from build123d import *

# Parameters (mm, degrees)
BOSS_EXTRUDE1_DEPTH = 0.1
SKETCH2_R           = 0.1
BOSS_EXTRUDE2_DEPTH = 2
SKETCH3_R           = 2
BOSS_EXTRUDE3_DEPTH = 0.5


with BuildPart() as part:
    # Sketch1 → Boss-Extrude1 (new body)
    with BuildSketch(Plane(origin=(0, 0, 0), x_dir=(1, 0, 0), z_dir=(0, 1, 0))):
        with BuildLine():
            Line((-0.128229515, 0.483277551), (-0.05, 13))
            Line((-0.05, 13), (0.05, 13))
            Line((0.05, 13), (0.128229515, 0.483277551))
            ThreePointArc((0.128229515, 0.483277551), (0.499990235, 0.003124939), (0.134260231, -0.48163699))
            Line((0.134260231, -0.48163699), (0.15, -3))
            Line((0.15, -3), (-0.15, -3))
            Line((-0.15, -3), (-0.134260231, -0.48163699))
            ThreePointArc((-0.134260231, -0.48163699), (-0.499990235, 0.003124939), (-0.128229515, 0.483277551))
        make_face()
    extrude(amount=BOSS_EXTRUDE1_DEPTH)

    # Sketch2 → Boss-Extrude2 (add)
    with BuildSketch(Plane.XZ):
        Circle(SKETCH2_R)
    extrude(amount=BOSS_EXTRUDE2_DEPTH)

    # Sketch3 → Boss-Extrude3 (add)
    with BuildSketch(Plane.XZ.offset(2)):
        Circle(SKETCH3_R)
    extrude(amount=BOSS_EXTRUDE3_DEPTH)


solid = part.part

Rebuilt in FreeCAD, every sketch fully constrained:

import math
import FreeCAD as App
import Part
import Sketcher
from FreeCAD import Vector

doc = App.newDocument("Part")
params = doc.addObject("Spreadsheet::Sheet", "Params")
for row, (alias, value) in enumerate([
    ("sketch1_radius", "0.5 mm"),
    ("sketch1_width", "0.3 mm"),
    ("sketch1_width2", "0.1 mm"),
    ("pad1_length", "0.1 mm"),
    ("sketch2_diameter", "0.2 mm"),
    ("pad2_length", "2 mm"),
    ("sketch3_diameter", "4 mm"),
    ("pad3_length", "0.5 mm"),
], start=1):
    params.set(f"A{row}", alias)
    params.set(f"B{row}", "=" + value)
    params.setAlias(f"B{row}", alias)

body = doc.addObject("PartDesign::Body", "Body")

# Sketch on XZ plane
sketch1 = doc.addObject("Sketcher::SketchObject", "Sketch")
body.addObject(sketch1)
sketch1.AttachmentSupport = (doc.XZ_Plane, [""])
sketch1.MapMode = "FlatFace"
sketch1.addGeometry([
    Part.LineSegment(Vector(-0.05, -13, 0), Vector(-0.13, -0.48, 0)),  # 0
    Part.ArcOfCircle(Part.Circle(Vector(0, 0, 0), Vector(0, 0, 1), 0.5), math.radians(106), math.radians(255)),  # 1
    Part.LineSegment(Vector(-0.13, 0.48, 0), Vector(-0.15, 3, 0)),  # 2
    Part.LineSegment(Vector(-0.15, 3, 0), Vector(0.15, 3, 0)),  # 3
    Part.LineSegment(Vector(0.15, 3, 0), Vector(0.13, 0.48, 0)),  # 4
    Part.ArcOfCircle(Part.Circle(Vector(0, 0, 0), Vector(0, 0, 1), 0.5), math.radians(-75), math.radians(74)),  # 5
    Part.LineSegment(Vector(0.13, -0.48, 0), Vector(0.05, -13, 0)),  # 6
    Part.LineSegment(Vector(0.05, -13, 0), Vector(-0.05, -13, 0)),  # 7
], False)
sketch1.addConstraint([
    Sketcher.Constraint("Coincident", 0, 2, 1, 2),
    Sketcher.Constraint("Coincident", 1, 1, 2, 1),
    Sketcher.Constraint("Coincident", 2, 2, 3, 1),
    Sketcher.Constraint("Coincident", 3, 2, 4, 1),
    Sketcher.Constraint("Coincident", 4, 2, 5, 2),
    Sketcher.Constraint("Coincident", 5, 1, 6, 1),
    Sketcher.Constraint("Coincident", 6, 2, 7, 1),
    Sketcher.Constraint("Coincident", 7, 2, 0, 1),
    Sketcher.Constraint("Horizontal", 3),
    Sketcher.Constraint("Horizontal", 7),
    Sketcher.Constraint("Coincident", 1, 3, -1, 1),
    Sketcher.Constraint("Coincident", 5, 3, -1, 1),
    Sketcher.Constraint("Equal", 1, 5),
    Sketcher.Constraint("Parallel", 0, 2),
    Sketcher.Constraint("Parallel", 4, 6),
    Sketcher.Constraint("Horizontal", 1, 1, 4, 2),
    Sketcher.Constraint("Horizontal", 0, 2, 5, 1),
    Sketcher.Constraint("Equal", 0, 6),
    Sketcher.Constraint("Radius", 1, 0.5),
    Sketcher.Constraint("DistanceX", 3, 1, 3, 2, 0.3),
    Sketcher.Constraint("DistanceX", 7, 2, 7, 1, 0.1),
    Sketcher.Constraint("DistanceY", -1, 1, 2, 2, 3.0),
    Sketcher.Constraint("DistanceY", 6, 2, -1, 1, 13.0),
    Sketcher.Constraint("DistanceX", 0, 2, -1, 1, 0.12823),
])
sketch1.setExpression("Constraints[18]", "Params.sketch1_radius")
sketch1.setExpression("Constraints[19]", "Params.sketch1_width")
sketch1.setExpression("Constraints[20]", "Params.sketch1_width2")
pad1 = doc.addObject("PartDesign::Pad", "Pad")
body.addObject(pad1)
pad1.Profile = sketch1
pad1.setExpression("Length", "Params.pad1_length")
pad1.Reversed = True

# Sketch on XZ plane
sketch2 = doc.addObject("Sketcher::SketchObject", "Sketch001")
body.addObject(sketch2)
sketch2.AttachmentSupport = (doc.XZ_Plane, [""])
sketch2.MapMode = "FlatFace"
sketch2.addGeometry(Part.Circle(Vector(0, 0, 0), Vector(0, 0, 1), 0.1), False)
sketch2.addConstraint([
    Sketcher.Constraint("Coincident", 0, 3, -1, 1),
    Sketcher.Constraint("Diameter", 0, 0.2),
])
sketch2.setExpression("Constraints[1]", "Params.sketch2_diameter")
pad2 = doc.addObject("PartDesign::Pad", "Pad001")
body.addObject(pad2)
pad2.Profile = sketch2
pad2.setExpression("Length", "Params.pad2_length")

# Sketch on XZ plane
sketch3 = doc.addObject("Sketcher::SketchObject", "Sketch002")
body.addObject(sketch3)
sketch3.AttachmentSupport = (doc.XZ_Plane, [""])
sketch3.MapMode = "FlatFace"
sketch3.AttachmentOffset = App.Placement(Vector(0, 0, 2), App.Rotation())
sketch3.addGeometry(Part.Circle(Vector(0, 0, 0), Vector(0, 0, 1), 2), False)
sketch3.addConstraint([
    Sketcher.Constraint("Coincident", 0, 3, -1, 1),
    Sketcher.Constraint("Diameter", 0, 4.0),
])
sketch3.setExpression("Constraints[1]", "Params.sketch3_diameter")
pad3 = doc.addObject("PartDesign::Pad", "Pad002")
body.addObject(pad3)
pad3.Profile = sketch3
pad3.setExpression("Length", "Params.pad3_length")

doc.recompute()
